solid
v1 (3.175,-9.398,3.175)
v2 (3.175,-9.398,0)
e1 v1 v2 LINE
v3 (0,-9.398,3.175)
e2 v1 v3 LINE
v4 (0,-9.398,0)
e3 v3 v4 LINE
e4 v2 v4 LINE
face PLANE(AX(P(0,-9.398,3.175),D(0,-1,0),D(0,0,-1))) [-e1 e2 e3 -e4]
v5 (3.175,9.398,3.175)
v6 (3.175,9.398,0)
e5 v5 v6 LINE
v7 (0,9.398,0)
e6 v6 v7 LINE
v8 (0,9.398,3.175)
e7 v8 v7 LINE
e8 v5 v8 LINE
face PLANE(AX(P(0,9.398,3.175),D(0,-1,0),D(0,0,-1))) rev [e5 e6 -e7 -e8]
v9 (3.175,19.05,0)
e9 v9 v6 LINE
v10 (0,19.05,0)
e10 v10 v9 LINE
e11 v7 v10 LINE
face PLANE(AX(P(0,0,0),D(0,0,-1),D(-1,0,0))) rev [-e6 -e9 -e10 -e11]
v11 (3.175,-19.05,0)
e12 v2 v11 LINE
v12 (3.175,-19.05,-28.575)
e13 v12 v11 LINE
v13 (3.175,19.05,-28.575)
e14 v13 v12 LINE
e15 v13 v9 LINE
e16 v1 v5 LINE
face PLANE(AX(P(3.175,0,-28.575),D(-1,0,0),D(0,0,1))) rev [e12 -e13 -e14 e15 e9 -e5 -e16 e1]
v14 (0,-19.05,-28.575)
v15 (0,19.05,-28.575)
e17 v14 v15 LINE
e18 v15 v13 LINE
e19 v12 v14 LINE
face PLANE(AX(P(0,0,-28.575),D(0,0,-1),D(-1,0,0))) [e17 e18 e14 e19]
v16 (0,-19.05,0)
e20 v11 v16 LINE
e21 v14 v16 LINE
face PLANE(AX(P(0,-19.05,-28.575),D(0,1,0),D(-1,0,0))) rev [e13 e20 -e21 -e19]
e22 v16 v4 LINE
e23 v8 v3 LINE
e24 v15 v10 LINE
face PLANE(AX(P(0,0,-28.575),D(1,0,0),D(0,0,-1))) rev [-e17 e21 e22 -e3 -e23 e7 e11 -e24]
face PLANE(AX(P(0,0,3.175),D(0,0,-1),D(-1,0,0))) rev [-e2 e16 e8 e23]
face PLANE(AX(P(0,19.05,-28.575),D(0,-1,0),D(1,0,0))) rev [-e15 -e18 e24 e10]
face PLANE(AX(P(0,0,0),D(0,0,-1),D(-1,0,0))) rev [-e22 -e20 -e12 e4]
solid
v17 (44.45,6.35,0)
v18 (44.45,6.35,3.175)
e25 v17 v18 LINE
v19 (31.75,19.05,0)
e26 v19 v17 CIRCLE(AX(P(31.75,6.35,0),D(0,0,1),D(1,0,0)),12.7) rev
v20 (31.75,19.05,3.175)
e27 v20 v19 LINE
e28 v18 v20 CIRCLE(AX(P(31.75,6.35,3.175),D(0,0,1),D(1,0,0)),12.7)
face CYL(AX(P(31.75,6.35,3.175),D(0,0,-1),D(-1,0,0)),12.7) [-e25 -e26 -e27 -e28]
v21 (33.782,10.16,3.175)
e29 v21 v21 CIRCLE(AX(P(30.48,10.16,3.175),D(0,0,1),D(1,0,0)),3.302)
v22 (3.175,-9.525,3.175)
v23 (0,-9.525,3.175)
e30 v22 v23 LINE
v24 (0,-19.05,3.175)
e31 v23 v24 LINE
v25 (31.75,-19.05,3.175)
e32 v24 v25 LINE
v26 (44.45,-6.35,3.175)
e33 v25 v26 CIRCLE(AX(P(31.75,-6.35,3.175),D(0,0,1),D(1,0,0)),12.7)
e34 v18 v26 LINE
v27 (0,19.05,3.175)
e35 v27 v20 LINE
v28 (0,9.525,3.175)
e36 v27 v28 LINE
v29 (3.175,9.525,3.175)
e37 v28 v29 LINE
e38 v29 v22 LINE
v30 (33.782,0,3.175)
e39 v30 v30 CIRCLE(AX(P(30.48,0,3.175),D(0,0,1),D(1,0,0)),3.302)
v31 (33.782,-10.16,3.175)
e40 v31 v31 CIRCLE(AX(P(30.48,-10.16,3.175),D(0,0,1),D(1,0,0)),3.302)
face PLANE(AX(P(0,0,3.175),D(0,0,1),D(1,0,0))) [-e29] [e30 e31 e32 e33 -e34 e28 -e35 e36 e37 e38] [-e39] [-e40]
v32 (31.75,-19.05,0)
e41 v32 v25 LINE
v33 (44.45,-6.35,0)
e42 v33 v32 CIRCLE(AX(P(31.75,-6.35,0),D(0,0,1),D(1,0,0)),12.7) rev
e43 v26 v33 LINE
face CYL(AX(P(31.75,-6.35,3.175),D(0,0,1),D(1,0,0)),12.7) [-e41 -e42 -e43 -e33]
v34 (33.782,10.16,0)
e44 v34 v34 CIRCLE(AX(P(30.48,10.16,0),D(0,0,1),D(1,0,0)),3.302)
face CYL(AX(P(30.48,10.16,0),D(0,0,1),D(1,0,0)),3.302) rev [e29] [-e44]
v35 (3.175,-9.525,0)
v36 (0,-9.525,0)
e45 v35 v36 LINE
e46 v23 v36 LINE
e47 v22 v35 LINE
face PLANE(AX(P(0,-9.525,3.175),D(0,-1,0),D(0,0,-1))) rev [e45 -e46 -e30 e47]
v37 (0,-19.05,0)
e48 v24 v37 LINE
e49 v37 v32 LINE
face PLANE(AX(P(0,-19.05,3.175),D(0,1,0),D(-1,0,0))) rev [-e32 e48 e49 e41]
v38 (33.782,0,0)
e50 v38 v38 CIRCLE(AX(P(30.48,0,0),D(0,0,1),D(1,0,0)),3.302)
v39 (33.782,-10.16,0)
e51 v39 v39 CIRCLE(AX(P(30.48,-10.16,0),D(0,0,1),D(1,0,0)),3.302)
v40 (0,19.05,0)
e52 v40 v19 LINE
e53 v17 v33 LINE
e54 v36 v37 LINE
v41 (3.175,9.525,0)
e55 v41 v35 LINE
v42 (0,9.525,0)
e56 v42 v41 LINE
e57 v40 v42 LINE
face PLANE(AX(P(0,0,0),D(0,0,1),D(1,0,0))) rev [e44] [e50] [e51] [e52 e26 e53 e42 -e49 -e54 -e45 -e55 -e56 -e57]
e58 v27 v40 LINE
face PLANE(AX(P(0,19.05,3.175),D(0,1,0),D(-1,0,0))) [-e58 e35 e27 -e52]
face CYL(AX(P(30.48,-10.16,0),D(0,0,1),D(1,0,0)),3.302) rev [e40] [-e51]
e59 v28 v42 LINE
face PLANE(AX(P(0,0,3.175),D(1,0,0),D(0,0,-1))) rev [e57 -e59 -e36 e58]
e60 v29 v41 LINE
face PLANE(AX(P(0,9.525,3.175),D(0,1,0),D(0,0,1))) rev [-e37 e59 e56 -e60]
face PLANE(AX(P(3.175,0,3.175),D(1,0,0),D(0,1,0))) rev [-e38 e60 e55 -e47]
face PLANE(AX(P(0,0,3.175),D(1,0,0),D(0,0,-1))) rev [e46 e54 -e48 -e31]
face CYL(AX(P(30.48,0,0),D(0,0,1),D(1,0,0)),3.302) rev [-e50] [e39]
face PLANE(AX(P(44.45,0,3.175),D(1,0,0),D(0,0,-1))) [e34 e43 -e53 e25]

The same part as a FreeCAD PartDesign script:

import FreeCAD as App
import Part
import Sketcher
from FreeCAD import Vector
Q = App.Units.Quantity


def edges_at(feature, points):
    """Names of the edges that pass closest to the given points."""
    edges = feature.Shape.Edges
    near = lambda p: min(range(len(edges)), key=lambda i: edges[i].distToShape(Part.Vertex(*p))[0])
    return sorted({f"Edge{near(p) + 1}" for p in points})


def add_polygon(sketch, points):
    """Adds a closed chain of lines whose ends are joined by coincident constraints."""
    first, n = sketch.GeometryCount, len(points)
    for a, b in zip(points, points[1:] + points[:1]):
        sketch.addGeometry(Part.LineSegment(App.Vector(*a, 0), App.Vector(*b, 0)), False)
    for i in range(n):
        sketch.addConstraint(Sketcher.Constraint("Coincident", first + i, 2, first + (i + 1) % n, 1))

doc = App.newDocument("Part")
params = doc.addObject("Spreadsheet::Sheet", "Params")
for row, (alias, value) in enumerate([
    ("sketch1_height", "1.5 in"),
    ("sketch1_width", "1.75 in"),
    ("sketch1_height2", "0.75 in"),
    ("sketch1_width2", "0.125 in"),
    ("pad1_length", "0.125 in"),
    ("sketch2_diameter", "0.26 in"),
    ("fillet_radius", "0.5 in"),
    ("sketch3_height", "1.5 in"),
    ("sketch3_width", "0.125 in"),
    ("pad2_length", "1.125 in"),
    ("sketch4_height", "0.74 in"),
    ("sketch4_width", "0.125 in"),
    ("pad3_length", "0.125 in"),
], start=1):
    params.set(f"A{row}", alias)
    params.set(f"B{row}", "=" + value)
    params.setAlias(f"B{row}", alias)

body = doc.addObject("PartDesign::Body", "Body")

# Sketch on XY plane
sketch1 = doc.addObject("Sketcher::SketchObject", "Sketch")
body.addObject(sketch1)
sketch1.AttachmentSupport = (doc.XY_Plane, [""])
sketch1.MapMode = "FlatFace"
add_polygon(sketch1, [(0, 19.1), (0, 9.5), (3.2, 9.5), (3.2, -9.5), (0, -9.5), (0, -19.1), (44.5, -19.1), (44.5, 19.1)])  # lines 0-7
sketch1.addConstraint(Sketcher.Constraint("Vertical", 0))
sketch1.addConstraint(Sketcher.Constraint("Horizontal", 1))
sketch1.addConstraint(Sketcher.Constraint("Vertical", 2))
sketch1.addConstraint(Sketcher.Constraint("Horizontal", 3))
sketch1.addConstraint(Sketcher.Constraint("Vertical", 4))
sketch1.addConstraint(Sketcher.Constraint("Horizontal", 5))
sketch1.addConstraint(Sketcher.Constraint("Vertical", 6))
sketch1.addConstraint(Sketcher.Constraint("Horizontal", 7))
sketch1.addConstraint(Sketcher.Constraint("Symmetric", 0, 2, 3, 2, -1, 1))
sketch1.addConstraint(Sketcher.Constraint("Symmetric", 4, 2, 7, 2, -1))
sketch1.addConstraint(Sketcher.Constraint("DistanceY", 6, 1, 6, 2, Q("1.5 in")))
sketch1.addConstraint(Sketcher.Constraint("DistanceX", 5, 1, 5, 2, Q("1.75 in")))
sketch1.addConstraint(Sketcher.Constraint("DistanceY", 2, 2, 2, 1, Q("0.75 in")))
sketch1.addConstraint(Sketcher.Constraint("DistanceX", 1, 1, 1, 2, Q("0.125 in")))
sketch1.setExpression("Constraints[18]", "Params.sketch1_height")
sketch1.setExpression("Constraints[19]", "Params.sketch1_width")
sketch1.setExpression("Constraints[20]", "Params.sketch1_height2")
sketch1.setExpression("Constraints[21]", "Params.sketch1_width2")
pad1 = doc.addObject("PartDesign::Pad", "Pad")
body.addObject(pad1)
pad1.Profile = sketch1
pad1.setExpression("Length", "Params.pad1_length")

# Sketch on XY plane
sketch2 = doc.addObject("Sketcher::SketchObject", "Sketch001")
body.addObject(sketch2)
sketch2.AttachmentSupport = (doc.XY_Plane, [""])
sketch2.MapMode = "FlatFace"
sketch2.AttachmentOffset = App.Placement(Vector(0, 0, 0.125 * 25.4), App.Rotation())
sketch2.addGeometry(Part.Circle(Vector(30.5, 10.2, 0), Vector(0, 0, 1), 3.3), False)
sketch2.addGeometry(Part.Circle(Vector(30.5, -10.2, 0), Vector(0, 0, 1), 3.3), False)
sketch2.addGeometry(Part.Circle(Vector(30.5, 0, 0), Vector(0, 0, 1), 3.3), False)
sketch2.addConstraint(Sketcher.Constraint("Equal", 0, 1))
sketch2.addConstraint(Sketcher.Constraint("Equal", 1, 2))
sketch2.addConstraint(Sketcher.Constraint("Symmetric", 0, 3, 1, 3, -1))
sketch2.addConstraint(Sketcher.Constraint("PointOnObject", 2, 3, -1))
sketch2.addConstraint(Sketcher.Constraint("Vertical", 1, 3, 2, 3))
sketch2.addConstraint(Sketcher.Constraint("Diameter", 0, Q("0.26 in")))
sketch2.addConstraint(Sketcher.Constraint("DistanceX", -1, 1, 0, 3, Q("1.2 in")))
sketch2.addConstraint(Sketcher.Constraint("DistanceY", -1, 1, 0, 3, Q("0.4 in")))
sketch2.setExpression("Constraints[5]", "Params.sketch2_diameter")
pocket1 = doc.addObject("PartDesign::Pocket", "Pocket")
body.addObject(pocket1)
pocket1.Profile = sketch2
pocket1.Type = "ThroughAll"
pocket1.Midplane = True
doc.recompute()

fillet = doc.addObject("PartDesign::Fillet", "Fillet")
body.addObject(fillet)
fillet.Base = (pocket1, edges_at(pocket1, [(44.45, 19.05, 1.587), (44.45, -19.05, 1.587)]))
fillet.setExpression("Radius", "Params.fillet_radius")
body2 = doc.addObject("PartDesign::Body", "Body001")

# Sketch on XY plane
sketch3 = doc.addObject("Sketcher::SketchObject", "Sketch002")
body2.addObject(sketch3)
sketch3.AttachmentSupport = (doc.getObject("XY_Plane001"), [""])
sketch3.MapMode = "FlatFace"
add_polygon(sketch3, [(3.2, 19.1), (3.2, -19.1), (0, -19.1), (0, 19.1)])  # lines 0-3
sketch3.addConstraint(Sketcher.Constraint("Vertical", 0))
sketch3.addConstraint(Sketcher.Constraint("Horizontal", 1))
sketch3.addConstraint(Sketcher.Constraint("Vertical", 2))
sketch3.addConstraint(Sketcher.Constraint("Horizontal", 3))
sketch3.addConstraint(Sketcher.Constraint("Symmetric", 1, 2, 2, 2, -1, 1))
sketch3.addConstraint(Sketcher.Constraint("DistanceY", 0, 2, 0, 1, Q("1.5 in")))
sketch3.addConstraint(Sketcher.Constraint("DistanceX", 1, 2, 1, 1, Q("0.125 in")))
sketch3.setExpression("Constraints[9]", "Params.sketch3_height")
sketch3.setExpression("Constraints[10]", "Params.sketch3_width")
pad2 = doc.addObject("PartDesign::Pad", "Pad001")
body2.addObject(pad2)
pad2.Profile = sketch3
pad2.setExpression("Length", "Params.pad2_length")
pad2.Reversed = True

# Sketch on XY plane
sketch4 = doc.addObject("Sketcher::SketchObject", "Sketch003")
body2.addObject(sketch4)
sketch4.AttachmentSupport = (doc.getObject("XY_Plane001"), [""])
sketch4.MapMode = "FlatFace"
add_polygon(sketch4, [(3.2, 9.4), (3.2, -9.4), (0, -9.4), (0, 9.4)])  # lines 0-3
sketch4.addConstraint(Sketcher.Constraint("Vertical", 0))
sketch4.addConstraint(Sketcher.Constraint("Horizontal", 1))
sketch4.addConstraint(Sketcher.Constraint("Vertical", 2))
sketch4.addConstraint(Sketcher.Constraint("Horizontal", 3))
sketch4.addConstraint(Sketcher.Constraint("Symmetric", 1, 2, 2, 2, -1, 1))
sketch4.addConstraint(Sketcher.Constraint("DistanceY", 0, 2, 0, 1, Q("0.74 in")))
sketch4.addConstraint(Sketcher.Constraint("DistanceX", 1, 2, 1, 1, Q("0.125 in")))
sketch4.setExpression("Constraints[9]", "Params.sketch4_height")
sketch4.setExpression("Constraints[10]", "Params.sketch4_width")
pad3 = doc.addObject("PartDesign::Pad", "Pad002")
body2.addObject(pad3)
pad3.Profile = sketch4
pad3.setExpression("Length", "Params.pad3_length")

doc.recompute()
